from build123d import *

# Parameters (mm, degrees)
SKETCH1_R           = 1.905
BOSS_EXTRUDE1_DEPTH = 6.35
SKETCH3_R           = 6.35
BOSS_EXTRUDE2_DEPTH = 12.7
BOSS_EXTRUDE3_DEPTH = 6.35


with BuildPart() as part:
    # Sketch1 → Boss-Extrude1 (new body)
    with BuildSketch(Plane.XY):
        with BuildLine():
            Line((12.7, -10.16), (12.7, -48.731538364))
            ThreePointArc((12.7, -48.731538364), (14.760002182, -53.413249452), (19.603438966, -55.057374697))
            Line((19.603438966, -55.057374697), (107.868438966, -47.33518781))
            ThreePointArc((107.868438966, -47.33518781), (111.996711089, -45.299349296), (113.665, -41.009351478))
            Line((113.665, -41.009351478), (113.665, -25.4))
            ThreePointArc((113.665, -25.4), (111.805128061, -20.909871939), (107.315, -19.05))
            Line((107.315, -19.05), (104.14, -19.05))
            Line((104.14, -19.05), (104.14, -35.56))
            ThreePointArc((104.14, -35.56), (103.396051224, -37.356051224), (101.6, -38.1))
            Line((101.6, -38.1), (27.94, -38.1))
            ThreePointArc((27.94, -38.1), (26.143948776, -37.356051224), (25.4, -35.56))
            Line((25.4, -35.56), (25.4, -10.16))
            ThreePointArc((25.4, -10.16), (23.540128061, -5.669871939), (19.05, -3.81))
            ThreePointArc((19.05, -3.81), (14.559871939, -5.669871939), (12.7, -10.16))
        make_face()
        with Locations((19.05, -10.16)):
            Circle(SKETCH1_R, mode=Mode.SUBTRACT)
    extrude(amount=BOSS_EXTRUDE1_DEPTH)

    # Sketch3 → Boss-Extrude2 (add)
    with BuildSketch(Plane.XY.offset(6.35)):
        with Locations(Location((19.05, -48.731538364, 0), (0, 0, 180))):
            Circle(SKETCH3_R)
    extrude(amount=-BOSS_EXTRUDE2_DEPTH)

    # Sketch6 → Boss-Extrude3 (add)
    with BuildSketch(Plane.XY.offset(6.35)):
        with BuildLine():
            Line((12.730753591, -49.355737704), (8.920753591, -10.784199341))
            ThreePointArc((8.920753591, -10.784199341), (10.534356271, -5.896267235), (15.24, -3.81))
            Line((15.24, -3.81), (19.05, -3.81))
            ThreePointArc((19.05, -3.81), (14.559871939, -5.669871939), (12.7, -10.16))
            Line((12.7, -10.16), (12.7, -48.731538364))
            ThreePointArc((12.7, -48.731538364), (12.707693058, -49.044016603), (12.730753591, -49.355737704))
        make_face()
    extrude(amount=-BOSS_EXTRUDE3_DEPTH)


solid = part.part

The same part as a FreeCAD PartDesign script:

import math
import FreeCAD as App
import Part
import Sketcher

V = App.Vector
Q = App.Units.Quantity

doc = App.newDocument("Part")
body = doc.addObject("PartDesign::Body", "Body")

sketch1 = doc.addObject("Sketcher::SketchObject", "Sketch")
body.addObject(sketch1)
sketch1.AttachmentSupport = (doc.XY_Plane, [""])
sketch1.MapMode = "FlatFace"
sketch1.addGeometry([
    Part.LineSegment(V(12.7, -10.16, 0), V(12.7, -48.731538, 0)),
    Part.ArcOfCircle(Part.Circle(V(19.05, -48.731538, 0), V(0, 0, 1), 6.35), math.radians(-180), math.radians(-85)),
    Part.LineSegment(V(19.603439, -55.057375, 0), V(107.868439, -47.335188, 0)),
    Part.ArcOfCircle(Part.Circle(V(107.315, -41.009351, 0), V(0, 0, 1), 6.35), math.radians(-85), math.radians(0)),
    Part.LineSegment(V(113.665, -41.009351, 0), V(113.665, -25.4, 0)),
    Part.ArcOfCircle(Part.Circle(V(107.315, -25.4, 0), V(0, 0, 1), 6.35), math.radians(0), math.radians(90)),
    Part.LineSegment(V(107.315, -19.05, 0), V(104.14, -19.05, 0)),
    Part.LineSegment(V(104.14, -19.05, 0), V(104.14, -35.56, 0)),
    Part.ArcOfCircle(Part.Circle(V(101.6, -35.56, 0), V(0, 0, 1), 2.54), math.radians(-90), math.radians(0)),
    Part.LineSegment(V(101.6, -38.1, 0), V(27.94, -38.1, 0)),
    Part.ArcOfCircle(Part.Circle(V(27.94, -35.56, 0), V(0, 0, 1), 2.54), math.radians(-180), math.radians(-90)),
    Part.LineSegment(V(25.4, -35.56, 0), V(25.4, -10.16, 0)),
    Part.ArcOfCircle(Part.Circle(V(19.05, -10.16, 0), V(0, 0, 1), 6.35), math.radians(0), math.radians(90)),
    Part.ArcOfCircle(Part.Circle(V(19.05, -10.16, 0), V(0, 0, 1), 6.35), math.radians(90), math.radians(180)),
    Part.Circle(V(19.05, -10.16, 0), V(0, 0, 1), 1.905),
], False)
sketch1.addConstraint([
    Sketcher.Constraint("Tangent", 0, 2, 1, 1),
    Sketcher.Constraint("Tangent", 1, 2, 2, 1),
    Sketcher.Constraint("Tangent", 2, 2, 3, 1),
    Sketcher.Constraint("Tangent", 3, 2, 4, 1),
    Sketcher.Constraint("Tangent", 4, 2, 5, 1),
    Sketcher.Constraint("Tangent", 5, 2, 6, 1),
    Sketcher.Constraint("Coincident", 6, 2, 7, 1),
    Sketcher.Constraint("Tangent", 7, 2, 8, 2),
    Sketcher.Constraint("Tangent", 8, 1, 9, 1),
    Sketcher.Constraint("Tangent", 9, 2, 10, 2),
    Sketcher.Constraint("Tangent", 10, 1, 11, 1),
    Sketcher.Constraint("Tangent", 11, 2, 12, 1),
    Sketcher.Constraint("Tangent", 12, 2, 13, 1),
    Sketcher.Constraint("Tangent", 13, 2, 0, 1),
    Sketcher.Constraint("Vertical", 0),
    Sketcher.Constraint("Vertical", 4),
    Sketcher.Constraint("Horizontal", 6),
    Sketcher.Constraint("Vertical", 7),
    Sketcher.Constraint("Horizontal", 9),
    Sketcher.Constraint("Vertical", 11),
    Sketcher.Constraint("Coincident", 14, 3, 12, 3),
    Sketcher.Constraint("Equal", 1, 3),
    Sketcher.Constraint("Equal", 3, 5),
    Sketcher.Constraint("Equal", 8, 10),
    Sketcher.Constraint("Equal", 5, 12),
    Sketcher.Constraint("Equal", 12, 13),
    Sketcher.Constraint("Vertical", 14, 3, 12, 2),
    Sketcher.Constraint("Radius", 8, Q("0.1 in")),
    Sketcher.Constraint("Diameter", 14, Q("0.15 in")),
    Sketcher.Constraint("DistanceY", 11, 1, 11, 2, Q("1 in")),
    Sketcher.Constraint("Radius", 1, Q("0.25 in")),
    Sketcher.Constraint("DistanceX", 9, 2, 9, 1, Q("2.9 in")),
    Sketcher.Constraint("DistanceY", 5, 3, -1, 1, Q("1 in")),
    Sketcher.Constraint("DistanceX", -1, 1, 8, 3, Q("4 in")),
    Sketcher.Constraint("Angle", 2, Q("5 deg")),
    Sketcher.Constraint("DistanceY", 7, 2, 7, 1, Q("0.65 in")),
    Sketcher.Constraint("DistanceX", 6, 2, 6, 1, Q("0.125 in")),
    Sketcher.Constraint("DistanceY", 0, 2, 0, 1, Q("38.571538 mm")),
])
pad1 = doc.addObject("PartDesign::Pad", "Pad")
body.addObject(pad1)
pad1.Profile = sketch1
pad1.Length = Q("0.25 in")

sketch2 = doc.addObject("Sketcher::SketchObject", "Sketch001")
body.addObject(sketch2)
sketch2.AttachmentSupport = (doc.XY_Plane, [""])
sketch2.MapMode = "FlatFace"
sketch2.AttachmentOffset = App.Placement(V(0, 0, 0.25 * 25.4), App.Rotation())
sketch2.addGeometry(Part.Circle(V(19.05, -48.731538, 0), V(0, 0, 1), 6.35), False)
sketch2.addConstraint([
    Sketcher.Constraint("Diameter", 0, Q("0.5 in")),
    Sketcher.Constraint("DistanceX", -1, 1, 0, 3, Q("0.75 in")),
    Sketcher.Constraint("DistanceY", 0, 3, -1, 1, Q("48.731538 mm")),
])
pad2 = doc.addObject("PartDesign::Pad", "Pad001")
body.addObject(pad2)
pad2.Profile = sketch2
pad2.Length = Q("0.5 in")
pad2.Reversed = True

sketch3 = doc.addObject("Sketcher::SketchObject", "Sketch002")
body.addObject(sketch3)
sketch3.AttachmentSupport = (doc.XY_Plane, [""])
sketch3.MapMode = "FlatFace"
sketch3.AttachmentOffset = App.Placement(V(0, 0, 0.25 * 25.4), App.Rotation())
sketch3.addGeometry([
    Part.LineSegment(V(8.920754, -10.784199, 0), V(12.730754, -49.355738, 0)),
    Part.ArcOfCircle(Part.Circle(V(19.05, -48.731538, 0), V(0, 0, 1), 6.35), math.radians(-180), math.radians(-174.358766)),
    Part.LineSegment(V(12.7, -48.731538, 0), V(12.7, -10.16, 0)),
    Part.ArcOfCircle(Part.Circle(V(19.05, -10.16, 0), V(0, 0, 1), 6.35), math.radians(90), math.radians(180)),
    Part.LineSegment(V(19.05, -3.81, 0), V(15.24, -3.81, 0)),
    Part.ArcOfCircle(Part.Circle(V(15.24, -10.16, 0), V(0, 0, 1), 6.35), math.radians(90), math.radians(185.641234)),
], False)
sketch3.addConstraint([
    Sketcher.Constraint("Tangent", 0, 2, 1, 2),
    Sketcher.Constraint("Tangent", 1, 1, 2, 1),
    Sketcher.Constraint("Tangent", 2, 2, 3, 2),
    Sketcher.Constraint("Tangent", 3, 1, 4, 1),
    Sketcher.Constraint("Tangent", 4, 2, 5, 1),
    Sketcher.Constraint("Tangent", 5, 2, 0, 1),
    Sketcher.Constraint("Vertical", 2),
    Sketcher.Constraint("Horizontal", 4),
    Sketcher.Constraint("Equal", 1, 3),
    Sketcher.Constraint("Equal", 3, 5),
    Sketcher.Constraint("Radius", 1, Q("0.25 in")),
    Sketcher.Constraint("DistanceX", 4, 2, 4, 1, Q("0.15 in")),
    Sketcher.Constraint("DistanceY", 3, 3, -1, 1, Q("0.4 in")),
    Sketcher.Constraint("DistanceX", -1, 1, 5, 3, Q("0.6 in")),
    Sketcher.Constraint("DistanceY", 2, 1, 2, 2, Q("38.571538 mm")),
])
pad3 = doc.addObject("PartDesign::Pad", "Pad002")
body.addObject(pad3)
pad3.Profile = sketch3
pad3.Length = Q("0.25 in")
pad3.Reversed = True

doc.recompute()
